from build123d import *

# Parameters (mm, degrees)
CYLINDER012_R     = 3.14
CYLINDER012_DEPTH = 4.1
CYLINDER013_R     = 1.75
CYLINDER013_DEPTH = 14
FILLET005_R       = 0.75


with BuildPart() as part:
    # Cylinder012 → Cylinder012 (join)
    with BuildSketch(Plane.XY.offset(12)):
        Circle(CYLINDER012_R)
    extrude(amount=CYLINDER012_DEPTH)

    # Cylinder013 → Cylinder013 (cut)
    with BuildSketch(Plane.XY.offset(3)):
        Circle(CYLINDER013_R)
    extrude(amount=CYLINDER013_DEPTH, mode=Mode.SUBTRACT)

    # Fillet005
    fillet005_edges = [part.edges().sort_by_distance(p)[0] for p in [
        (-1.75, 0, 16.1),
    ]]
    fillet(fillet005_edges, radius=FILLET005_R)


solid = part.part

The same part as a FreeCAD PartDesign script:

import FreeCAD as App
import Part
import Sketcher

V = App.Vector
Q = App.Units.Quantity


def edges_at(feature, points):
    """Names of the edges that pass closest to the given points."""
    edges = feature.Shape.Edges
    near = lambda p: min(range(len(edges)), key=lambda i: edges[i].distToShape(Part.Vertex(*p))[0])
    return sorted({f"Edge{near(p) + 1}" for p in points})

doc = App.newDocument("Part")
body = doc.addObject("PartDesign::Body", "Body")

# Sketch on XY plane
sketch1 = body.newObject("Sketcher::SketchObject", "Sketch")
sketch1.AttachmentSupport = (doc.getObject("XY_Plane"), [""])
sketch1.MapMode = "FlatFace"
sketch1.AttachmentOffset = App.Placement(V(0, 0, 12), App.Rotation())
sketch1.addGeometry(Part.Circle(V(0, 0, 0), V(0, 0, 1), 3.14), False)
sketch1.addConstraint([
    Sketcher.Constraint("Coincident", 0, 3, -1, 1),
    Sketcher.Constraint("Diameter", 0, Q("6.28 mm")),
])
pad1 = body.newObject("PartDesign::Pad", "Pad")
pad1.Profile = sketch1
pad1.Length = 4.1

# Sketch on XY plane
sketch2 = body.newObject("Sketcher::SketchObject", "Sketch001")
sketch2.AttachmentSupport = (doc.getObject("XY_Plane"), [""])
sketch2.MapMode = "FlatFace"
sketch2.AttachmentOffset = App.Placement(V(0, 0, 3), App.Rotation())
sketch2.addGeometry(Part.Circle(V(0, 0, 0), V(0, 0, 1), 1.75), False)
sketch2.addConstraint([
    Sketcher.Constraint("Coincident", 0, 3, -1, 1),
    Sketcher.Constraint("Diameter", 0, Q("3.5 mm")),
])
pocket1 = body.newObject("PartDesign::Pocket", "Pocket")
pocket1.Profile = sketch2
pocket1.Length = 14
pocket1.Reversed = True
doc.recompute()

fillet = body.newObject("PartDesign::Fillet", "Fillet")
fillet.Base = (pocket1, edges_at(pocket1, [(-1.75, 0, 16.1)]))
fillet.Radius = 0.75

doc.recompute()
